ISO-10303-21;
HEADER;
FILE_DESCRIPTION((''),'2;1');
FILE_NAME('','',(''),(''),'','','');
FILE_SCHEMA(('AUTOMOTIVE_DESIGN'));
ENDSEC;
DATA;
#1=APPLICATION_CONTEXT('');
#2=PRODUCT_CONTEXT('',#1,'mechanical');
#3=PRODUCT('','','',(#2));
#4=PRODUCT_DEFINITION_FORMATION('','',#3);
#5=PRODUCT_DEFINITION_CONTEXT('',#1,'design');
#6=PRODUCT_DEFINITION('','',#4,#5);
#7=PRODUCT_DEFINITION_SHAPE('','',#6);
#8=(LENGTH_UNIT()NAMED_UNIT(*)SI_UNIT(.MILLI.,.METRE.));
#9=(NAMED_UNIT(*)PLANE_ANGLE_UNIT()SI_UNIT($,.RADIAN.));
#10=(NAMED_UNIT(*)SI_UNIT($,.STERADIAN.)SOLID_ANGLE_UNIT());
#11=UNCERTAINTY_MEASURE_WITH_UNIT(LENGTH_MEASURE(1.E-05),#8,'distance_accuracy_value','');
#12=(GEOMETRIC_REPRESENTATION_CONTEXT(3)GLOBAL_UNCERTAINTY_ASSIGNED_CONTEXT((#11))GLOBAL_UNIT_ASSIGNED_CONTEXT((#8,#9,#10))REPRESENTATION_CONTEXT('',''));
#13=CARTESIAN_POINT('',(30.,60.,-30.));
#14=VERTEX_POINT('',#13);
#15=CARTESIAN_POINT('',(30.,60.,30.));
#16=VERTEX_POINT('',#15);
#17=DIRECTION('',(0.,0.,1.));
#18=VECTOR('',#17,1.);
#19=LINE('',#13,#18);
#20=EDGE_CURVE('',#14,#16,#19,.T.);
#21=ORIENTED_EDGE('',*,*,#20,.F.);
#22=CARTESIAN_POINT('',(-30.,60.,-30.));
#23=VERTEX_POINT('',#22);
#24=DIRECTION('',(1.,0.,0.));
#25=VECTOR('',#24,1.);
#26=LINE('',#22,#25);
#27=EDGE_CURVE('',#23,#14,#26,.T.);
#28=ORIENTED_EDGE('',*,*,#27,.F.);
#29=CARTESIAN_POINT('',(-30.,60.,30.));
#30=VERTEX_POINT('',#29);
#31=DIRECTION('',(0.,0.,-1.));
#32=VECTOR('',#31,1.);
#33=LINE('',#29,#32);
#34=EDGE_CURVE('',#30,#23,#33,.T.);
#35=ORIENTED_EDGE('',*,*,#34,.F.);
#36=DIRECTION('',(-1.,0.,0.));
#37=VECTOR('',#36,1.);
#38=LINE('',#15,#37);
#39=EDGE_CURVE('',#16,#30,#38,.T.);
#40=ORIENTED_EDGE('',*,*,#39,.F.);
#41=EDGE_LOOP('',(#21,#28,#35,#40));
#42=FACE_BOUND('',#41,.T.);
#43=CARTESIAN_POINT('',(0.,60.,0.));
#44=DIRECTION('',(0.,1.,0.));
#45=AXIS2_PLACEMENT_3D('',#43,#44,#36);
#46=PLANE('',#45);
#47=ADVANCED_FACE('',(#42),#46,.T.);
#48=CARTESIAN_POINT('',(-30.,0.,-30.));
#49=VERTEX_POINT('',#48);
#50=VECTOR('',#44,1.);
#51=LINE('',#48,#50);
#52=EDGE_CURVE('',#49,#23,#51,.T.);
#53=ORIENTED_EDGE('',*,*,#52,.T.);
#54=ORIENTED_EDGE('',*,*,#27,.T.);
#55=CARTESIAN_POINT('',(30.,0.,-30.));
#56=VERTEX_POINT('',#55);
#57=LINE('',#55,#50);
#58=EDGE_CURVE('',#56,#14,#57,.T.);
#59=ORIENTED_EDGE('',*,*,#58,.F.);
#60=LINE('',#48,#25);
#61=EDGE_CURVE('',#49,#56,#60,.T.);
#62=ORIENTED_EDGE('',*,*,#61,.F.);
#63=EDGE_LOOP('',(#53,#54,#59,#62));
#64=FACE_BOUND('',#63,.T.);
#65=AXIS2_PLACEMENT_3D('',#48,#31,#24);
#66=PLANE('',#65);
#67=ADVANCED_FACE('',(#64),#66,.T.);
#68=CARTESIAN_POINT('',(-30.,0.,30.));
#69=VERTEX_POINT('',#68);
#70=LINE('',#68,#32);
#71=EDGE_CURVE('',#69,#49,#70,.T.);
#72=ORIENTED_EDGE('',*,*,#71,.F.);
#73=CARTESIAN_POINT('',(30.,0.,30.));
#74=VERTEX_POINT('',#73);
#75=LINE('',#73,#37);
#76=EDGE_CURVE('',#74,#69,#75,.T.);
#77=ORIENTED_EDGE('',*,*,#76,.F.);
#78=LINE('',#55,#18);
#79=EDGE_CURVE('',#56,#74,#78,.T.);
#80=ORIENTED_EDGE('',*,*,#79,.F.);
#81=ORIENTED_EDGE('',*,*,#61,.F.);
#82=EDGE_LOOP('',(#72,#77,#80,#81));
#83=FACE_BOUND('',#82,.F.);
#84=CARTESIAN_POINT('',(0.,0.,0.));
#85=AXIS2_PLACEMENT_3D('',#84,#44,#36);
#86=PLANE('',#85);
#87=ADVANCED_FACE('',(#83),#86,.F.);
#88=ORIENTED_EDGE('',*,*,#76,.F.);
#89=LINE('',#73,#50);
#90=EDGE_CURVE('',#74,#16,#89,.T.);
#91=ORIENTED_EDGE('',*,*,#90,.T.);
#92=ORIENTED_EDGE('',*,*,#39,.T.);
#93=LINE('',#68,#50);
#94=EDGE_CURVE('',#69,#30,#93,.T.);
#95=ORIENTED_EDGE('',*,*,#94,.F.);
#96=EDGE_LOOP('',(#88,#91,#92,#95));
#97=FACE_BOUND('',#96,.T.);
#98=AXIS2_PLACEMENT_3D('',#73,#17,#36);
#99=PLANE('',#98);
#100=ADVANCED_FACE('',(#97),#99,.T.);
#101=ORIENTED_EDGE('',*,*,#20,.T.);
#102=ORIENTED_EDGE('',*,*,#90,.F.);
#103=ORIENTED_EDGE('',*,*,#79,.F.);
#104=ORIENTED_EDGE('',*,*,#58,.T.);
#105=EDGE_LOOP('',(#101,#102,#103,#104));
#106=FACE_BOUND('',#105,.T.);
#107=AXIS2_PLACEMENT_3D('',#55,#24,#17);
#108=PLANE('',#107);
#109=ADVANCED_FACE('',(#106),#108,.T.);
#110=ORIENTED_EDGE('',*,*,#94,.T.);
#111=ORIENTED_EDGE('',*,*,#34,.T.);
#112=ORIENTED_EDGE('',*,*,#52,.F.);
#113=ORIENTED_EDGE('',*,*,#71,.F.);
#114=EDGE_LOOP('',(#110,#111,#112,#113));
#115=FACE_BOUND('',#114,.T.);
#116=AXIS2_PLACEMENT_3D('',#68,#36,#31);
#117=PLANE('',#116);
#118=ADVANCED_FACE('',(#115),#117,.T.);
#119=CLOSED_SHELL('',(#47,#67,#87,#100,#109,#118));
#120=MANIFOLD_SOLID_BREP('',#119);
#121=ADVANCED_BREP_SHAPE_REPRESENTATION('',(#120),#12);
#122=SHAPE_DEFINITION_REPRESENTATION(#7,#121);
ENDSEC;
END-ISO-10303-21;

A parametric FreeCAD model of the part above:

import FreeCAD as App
import Part
import Sketcher
from FreeCAD import Vector
Q = App.Units.Quantity

doc = App.newDocument("Part")
body = doc.addObject("PartDesign::Body", "Body")

# Sketch on XZ plane
sketch1 = body.newObject("Sketcher::SketchObject", "Sketch")
sketch1.AttachmentSupport = (doc.getObject("XZ_Plane"), [""])
sketch1.MapMode = "FlatFace"
sketch1.addGeometry(Part.LineSegment(Vector(-30, 30, 0), Vector(30, 30, 0)), False)
sketch1.addGeometry(Part.LineSegment(Vector(30, 30, 0), Vector(30, -30, 0)), False)
sketch1.addGeometry(Part.LineSegment(Vector(30, -30, 0), Vector(-30, -30, 0)), False)
sketch1.addGeometry(Part.LineSegment(Vector(-30, -30, 0), Vector(-30, 30, 0)), False)
sketch1.addConstraint(Sketcher.Constraint("Coincident", 0, 2, 1, 1))
sketch1.addConstraint(Sketcher.Constraint("Coincident", 1, 2, 2, 1))
sketch1.addConstraint(Sketcher.Constraint("Coincident", 2, 2, 3, 1))
sketch1.addConstraint(Sketcher.Constraint("Coincident", 3, 2, 0, 1))
sketch1.addConstraint(Sketcher.Constraint("Horizontal", 0))
sketch1.addConstraint(Sketcher.Constraint("Vertical", 1))
sketch1.addConstraint(Sketcher.Constraint("Horizontal", 2))
sketch1.addConstraint(Sketcher.Constraint("Vertical", 3))
sketch1.addConstraint(Sketcher.Constraint("Symmetric", 0, 2, 2, 2, -1, 1))
sketch1.addConstraint(Sketcher.Constraint("Equal", 2, 1))
sketch1.addConstraint(Sketcher.Constraint("DistanceX", 0, 1, 0, 2, Q("60 mm")))
pad1 = body.newObject("PartDesign::Pad", "Pad")
pad1.Profile = sketch1
pad1.Length = 60
pad1.Reversed = True

doc.recompute()
